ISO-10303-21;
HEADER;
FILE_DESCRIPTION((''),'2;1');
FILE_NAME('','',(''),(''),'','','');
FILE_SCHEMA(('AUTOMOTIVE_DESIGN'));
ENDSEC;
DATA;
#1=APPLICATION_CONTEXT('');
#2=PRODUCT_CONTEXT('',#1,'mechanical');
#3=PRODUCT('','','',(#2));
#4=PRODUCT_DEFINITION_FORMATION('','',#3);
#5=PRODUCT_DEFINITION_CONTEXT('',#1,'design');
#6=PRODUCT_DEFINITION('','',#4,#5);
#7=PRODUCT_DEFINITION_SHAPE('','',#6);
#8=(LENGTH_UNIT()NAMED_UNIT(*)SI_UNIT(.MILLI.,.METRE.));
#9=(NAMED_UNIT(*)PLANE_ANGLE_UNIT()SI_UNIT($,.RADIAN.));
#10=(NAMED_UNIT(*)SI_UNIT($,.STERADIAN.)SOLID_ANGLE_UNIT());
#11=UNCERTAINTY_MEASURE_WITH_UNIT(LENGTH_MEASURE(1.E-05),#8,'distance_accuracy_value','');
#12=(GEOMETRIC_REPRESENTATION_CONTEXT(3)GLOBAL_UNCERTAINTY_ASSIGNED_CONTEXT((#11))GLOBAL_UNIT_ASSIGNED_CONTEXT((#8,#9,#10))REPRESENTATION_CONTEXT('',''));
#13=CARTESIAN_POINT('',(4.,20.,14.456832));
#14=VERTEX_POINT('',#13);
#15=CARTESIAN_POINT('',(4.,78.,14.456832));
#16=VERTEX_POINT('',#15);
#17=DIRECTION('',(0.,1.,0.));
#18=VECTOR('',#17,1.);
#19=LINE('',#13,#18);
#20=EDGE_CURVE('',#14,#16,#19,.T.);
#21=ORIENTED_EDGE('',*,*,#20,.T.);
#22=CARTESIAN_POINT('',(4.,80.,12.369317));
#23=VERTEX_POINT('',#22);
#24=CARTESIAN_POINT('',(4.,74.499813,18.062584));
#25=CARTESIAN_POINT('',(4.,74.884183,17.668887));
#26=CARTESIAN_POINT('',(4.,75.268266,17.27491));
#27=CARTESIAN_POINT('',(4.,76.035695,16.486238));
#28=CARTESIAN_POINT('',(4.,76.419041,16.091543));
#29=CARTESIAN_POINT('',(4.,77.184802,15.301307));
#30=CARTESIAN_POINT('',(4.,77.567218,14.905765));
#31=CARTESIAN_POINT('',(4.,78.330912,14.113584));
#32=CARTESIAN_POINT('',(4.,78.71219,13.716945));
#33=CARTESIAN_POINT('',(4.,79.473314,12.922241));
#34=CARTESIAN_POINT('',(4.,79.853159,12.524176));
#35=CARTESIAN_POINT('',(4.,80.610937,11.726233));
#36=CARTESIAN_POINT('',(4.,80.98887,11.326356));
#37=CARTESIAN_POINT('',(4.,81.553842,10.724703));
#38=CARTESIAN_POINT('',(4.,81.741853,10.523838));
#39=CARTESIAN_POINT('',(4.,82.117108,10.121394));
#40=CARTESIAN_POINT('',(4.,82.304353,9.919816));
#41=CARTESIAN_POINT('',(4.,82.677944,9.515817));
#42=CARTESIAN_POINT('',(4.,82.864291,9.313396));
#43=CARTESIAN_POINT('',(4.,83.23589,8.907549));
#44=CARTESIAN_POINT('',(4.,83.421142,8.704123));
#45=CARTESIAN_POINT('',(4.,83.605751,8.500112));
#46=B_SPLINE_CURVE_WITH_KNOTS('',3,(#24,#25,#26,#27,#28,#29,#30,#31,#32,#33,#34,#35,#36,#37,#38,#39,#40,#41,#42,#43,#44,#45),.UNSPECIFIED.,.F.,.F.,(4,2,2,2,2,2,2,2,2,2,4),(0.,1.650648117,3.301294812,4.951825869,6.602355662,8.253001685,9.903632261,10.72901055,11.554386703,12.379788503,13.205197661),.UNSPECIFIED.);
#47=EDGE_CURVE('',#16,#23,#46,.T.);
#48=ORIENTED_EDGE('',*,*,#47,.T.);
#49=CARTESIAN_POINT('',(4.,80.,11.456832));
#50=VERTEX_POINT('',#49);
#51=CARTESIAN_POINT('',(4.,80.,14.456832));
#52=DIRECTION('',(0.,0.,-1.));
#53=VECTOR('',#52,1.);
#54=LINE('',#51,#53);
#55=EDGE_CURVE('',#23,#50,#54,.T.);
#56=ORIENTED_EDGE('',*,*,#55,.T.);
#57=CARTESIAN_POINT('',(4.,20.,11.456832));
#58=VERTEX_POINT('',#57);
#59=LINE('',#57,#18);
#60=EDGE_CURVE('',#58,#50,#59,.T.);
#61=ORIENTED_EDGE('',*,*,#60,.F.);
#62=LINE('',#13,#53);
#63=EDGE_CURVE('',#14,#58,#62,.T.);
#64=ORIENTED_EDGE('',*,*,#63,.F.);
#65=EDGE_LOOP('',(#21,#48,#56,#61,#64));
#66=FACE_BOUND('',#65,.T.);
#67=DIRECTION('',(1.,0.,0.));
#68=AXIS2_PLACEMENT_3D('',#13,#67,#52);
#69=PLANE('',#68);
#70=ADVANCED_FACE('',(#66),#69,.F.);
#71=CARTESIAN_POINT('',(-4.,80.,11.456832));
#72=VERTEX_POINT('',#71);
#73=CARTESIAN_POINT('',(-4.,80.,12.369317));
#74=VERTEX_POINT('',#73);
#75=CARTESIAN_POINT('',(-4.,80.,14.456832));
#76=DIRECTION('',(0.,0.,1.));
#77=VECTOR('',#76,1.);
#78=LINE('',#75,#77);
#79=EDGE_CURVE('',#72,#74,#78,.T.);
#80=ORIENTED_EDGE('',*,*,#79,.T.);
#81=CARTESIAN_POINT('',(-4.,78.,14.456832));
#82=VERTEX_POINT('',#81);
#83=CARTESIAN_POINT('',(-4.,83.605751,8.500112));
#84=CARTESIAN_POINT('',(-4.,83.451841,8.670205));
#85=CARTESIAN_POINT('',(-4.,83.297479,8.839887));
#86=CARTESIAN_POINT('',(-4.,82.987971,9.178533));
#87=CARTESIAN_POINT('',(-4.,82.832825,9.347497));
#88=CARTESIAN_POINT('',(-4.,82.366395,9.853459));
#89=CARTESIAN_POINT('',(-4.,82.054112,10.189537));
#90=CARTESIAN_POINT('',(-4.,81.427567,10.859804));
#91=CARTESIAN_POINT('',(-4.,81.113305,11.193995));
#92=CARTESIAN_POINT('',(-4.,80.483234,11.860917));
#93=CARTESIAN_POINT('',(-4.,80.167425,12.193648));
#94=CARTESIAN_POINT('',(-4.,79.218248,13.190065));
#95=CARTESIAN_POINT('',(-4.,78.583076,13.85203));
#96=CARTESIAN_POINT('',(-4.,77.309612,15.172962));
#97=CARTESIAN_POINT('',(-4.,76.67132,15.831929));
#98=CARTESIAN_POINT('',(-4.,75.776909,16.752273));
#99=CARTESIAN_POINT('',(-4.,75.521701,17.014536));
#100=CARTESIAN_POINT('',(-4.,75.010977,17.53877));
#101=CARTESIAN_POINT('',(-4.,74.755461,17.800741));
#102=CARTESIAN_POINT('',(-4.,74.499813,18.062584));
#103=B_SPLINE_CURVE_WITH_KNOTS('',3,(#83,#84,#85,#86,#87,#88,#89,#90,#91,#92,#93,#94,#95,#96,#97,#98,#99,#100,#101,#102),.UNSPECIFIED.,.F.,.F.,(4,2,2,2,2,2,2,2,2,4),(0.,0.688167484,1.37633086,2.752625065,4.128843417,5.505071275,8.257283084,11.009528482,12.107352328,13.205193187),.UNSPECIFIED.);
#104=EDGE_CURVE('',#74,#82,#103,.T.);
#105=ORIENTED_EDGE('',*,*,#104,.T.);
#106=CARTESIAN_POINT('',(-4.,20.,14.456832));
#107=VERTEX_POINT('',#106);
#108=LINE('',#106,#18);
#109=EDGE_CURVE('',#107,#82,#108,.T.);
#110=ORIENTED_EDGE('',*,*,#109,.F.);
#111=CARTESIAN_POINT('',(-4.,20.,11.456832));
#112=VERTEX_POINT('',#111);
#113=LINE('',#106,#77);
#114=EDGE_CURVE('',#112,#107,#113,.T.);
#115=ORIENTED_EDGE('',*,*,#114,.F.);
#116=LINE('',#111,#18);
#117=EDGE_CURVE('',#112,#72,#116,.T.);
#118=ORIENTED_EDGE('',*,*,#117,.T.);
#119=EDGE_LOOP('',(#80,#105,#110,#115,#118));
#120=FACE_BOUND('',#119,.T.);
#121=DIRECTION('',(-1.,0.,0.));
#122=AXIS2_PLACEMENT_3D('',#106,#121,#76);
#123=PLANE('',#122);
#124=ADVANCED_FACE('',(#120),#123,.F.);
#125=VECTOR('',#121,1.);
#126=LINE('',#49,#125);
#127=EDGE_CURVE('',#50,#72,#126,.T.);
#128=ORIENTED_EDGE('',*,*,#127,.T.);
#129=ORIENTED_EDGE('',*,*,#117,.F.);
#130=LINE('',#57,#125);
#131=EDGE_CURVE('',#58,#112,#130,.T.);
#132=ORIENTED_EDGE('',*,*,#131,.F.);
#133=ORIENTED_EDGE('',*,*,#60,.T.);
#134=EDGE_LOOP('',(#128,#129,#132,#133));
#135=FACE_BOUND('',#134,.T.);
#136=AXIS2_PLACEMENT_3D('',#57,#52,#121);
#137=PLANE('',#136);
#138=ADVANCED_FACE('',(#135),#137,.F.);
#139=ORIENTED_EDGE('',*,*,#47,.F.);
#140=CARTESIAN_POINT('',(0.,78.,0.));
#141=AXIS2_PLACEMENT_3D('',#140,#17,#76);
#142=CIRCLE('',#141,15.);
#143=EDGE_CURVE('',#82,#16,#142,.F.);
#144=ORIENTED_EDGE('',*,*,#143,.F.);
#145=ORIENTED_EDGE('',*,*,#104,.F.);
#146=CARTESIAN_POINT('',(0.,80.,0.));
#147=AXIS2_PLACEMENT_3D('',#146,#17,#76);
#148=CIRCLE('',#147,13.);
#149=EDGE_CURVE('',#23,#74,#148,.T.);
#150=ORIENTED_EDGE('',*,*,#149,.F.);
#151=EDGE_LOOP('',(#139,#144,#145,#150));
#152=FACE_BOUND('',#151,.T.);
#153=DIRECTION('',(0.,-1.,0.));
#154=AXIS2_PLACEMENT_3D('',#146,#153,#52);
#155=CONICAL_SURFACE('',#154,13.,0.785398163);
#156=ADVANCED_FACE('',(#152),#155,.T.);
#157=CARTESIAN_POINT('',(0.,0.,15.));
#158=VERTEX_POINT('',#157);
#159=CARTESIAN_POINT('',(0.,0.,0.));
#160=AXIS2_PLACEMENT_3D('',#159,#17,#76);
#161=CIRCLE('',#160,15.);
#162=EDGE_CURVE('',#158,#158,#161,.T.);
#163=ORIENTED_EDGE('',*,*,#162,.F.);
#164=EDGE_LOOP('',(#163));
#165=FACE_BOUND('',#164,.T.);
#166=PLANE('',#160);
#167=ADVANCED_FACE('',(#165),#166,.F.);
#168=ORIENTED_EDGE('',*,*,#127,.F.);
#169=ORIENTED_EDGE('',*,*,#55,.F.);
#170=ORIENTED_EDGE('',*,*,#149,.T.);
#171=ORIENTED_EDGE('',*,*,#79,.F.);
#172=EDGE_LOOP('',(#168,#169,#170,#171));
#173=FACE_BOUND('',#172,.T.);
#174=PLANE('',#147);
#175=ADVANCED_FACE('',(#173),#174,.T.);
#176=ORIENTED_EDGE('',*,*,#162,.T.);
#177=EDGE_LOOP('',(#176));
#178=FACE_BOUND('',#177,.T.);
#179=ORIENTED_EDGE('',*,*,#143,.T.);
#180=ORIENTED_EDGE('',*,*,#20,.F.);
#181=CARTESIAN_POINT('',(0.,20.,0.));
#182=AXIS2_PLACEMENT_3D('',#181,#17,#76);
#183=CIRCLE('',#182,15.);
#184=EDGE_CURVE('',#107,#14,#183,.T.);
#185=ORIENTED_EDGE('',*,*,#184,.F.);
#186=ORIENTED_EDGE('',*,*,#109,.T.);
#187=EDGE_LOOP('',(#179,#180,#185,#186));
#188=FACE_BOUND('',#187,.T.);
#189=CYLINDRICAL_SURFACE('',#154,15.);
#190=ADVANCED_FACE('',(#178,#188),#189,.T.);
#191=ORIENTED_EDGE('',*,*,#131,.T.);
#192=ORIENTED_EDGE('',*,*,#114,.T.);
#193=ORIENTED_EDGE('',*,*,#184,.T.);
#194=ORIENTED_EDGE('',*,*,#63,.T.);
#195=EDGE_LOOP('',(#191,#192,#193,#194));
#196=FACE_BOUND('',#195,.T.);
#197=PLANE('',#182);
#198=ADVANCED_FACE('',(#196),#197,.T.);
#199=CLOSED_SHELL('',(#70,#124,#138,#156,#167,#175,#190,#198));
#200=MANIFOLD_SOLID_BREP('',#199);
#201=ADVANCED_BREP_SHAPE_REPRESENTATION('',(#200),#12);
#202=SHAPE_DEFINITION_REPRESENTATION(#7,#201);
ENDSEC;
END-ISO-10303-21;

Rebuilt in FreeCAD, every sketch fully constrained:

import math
import FreeCAD as App
import Part
import Sketcher
from FreeCAD import Vector
Q = App.Units.Quantity


def edges_at(feature, points):
    """Names of the edges that pass closest to the given points."""
    edges = feature.Shape.Edges
    near = lambda p: min(range(len(edges)), key=lambda i: edges[i].distToShape(Part.Vertex(*p))[0])
    return sorted({f"Edge{near(p) + 1}" for p in points})

doc = App.newDocument("Part")
params = doc.addObject("Spreadsheet::Sheet", "Params")
for row, (alias, value) in enumerate([
    ("sketch1_diameter", "30 mm"),
    ("pad1_length", "80 mm"),
    ("chamfer_size", "2 mm"),
    ("sketch2_radius", "15 mm"),
    ("sketch2_width", "8 mm"),
    ("sketch2_height", "3 mm"),
    ("pocket1_length", "60 mm"),
], start=1):
    params.set(f"A{row}", alias)
    params.set(f"B{row}", "=" + value)
    params.setAlias(f"B{row}", alias)

body = doc.addObject("PartDesign::Body", "Body")

sketch1 = body.newObject("Sketcher::SketchObject", "Sketch")
sketch1.AttachmentSupport = (doc.getObject("XZ_Plane"), [""])
sketch1.MapMode = "FlatFace"
sketch1.addGeometry(Part.Circle(Vector(0, 0, 0), Vector(0, 0, 1), 15), False)
sketch1.addConstraint([
    Sketcher.Constraint("Coincident", 0, 3, -1, 1),
    Sketcher.Constraint("Diameter", 0, Q("30 mm")),
])
sketch1.setExpression("Constraints[1]", "Params.sketch1_diameter")
pad1 = body.newObject("PartDesign::Pad", "Pad")
pad1.Profile = sketch1
pad1.setExpression("Length", "Params.pad1_length")
pad1.Reversed = True
doc.recompute()

chamfer = body.newObject("PartDesign::Chamfer", "Chamfer")
chamfer.Base = (pad1, edges_at(pad1, [(0, 80, -15)]))
chamfer.setExpression("Size", "Params.chamfer_size")

sketch2 = body.newObject("Sketcher::SketchObject", "Sketch001")
sketch2.AttachmentSupport = (doc.getObject("XZ_Plane"), [""])
sketch2.MapMode = "FlatFace"
sketch2.AttachmentOffset = App.Placement(Vector(0, 0, -20), App.Rotation())
sketch2.addGeometry([
    Part.LineSegment(Vector(4, 14.456832, 0), Vector(4, 11.456832, 0)),
    Part.LineSegment(Vector(4, 11.456832, 0), Vector(-4, 11.456832, 0)),
    Part.LineSegment(Vector(-4, 11.456832, 0), Vector(-4, 14.456832, 0)),
    Part.ArcOfCircle(Part.Circle(Vector(0, 0, 0), Vector(0, 0, 1), 15), math.radians(74.53399), math.radians(105.46601)),
], False)
sketch2.addConstraint([
    Sketcher.Constraint("Coincident", 0, 2, 1, 1),
    Sketcher.Constraint("Coincident", 1, 2, 2, 1),
    Sketcher.Constraint("Coincident", 2, 2, 3, 2),
    Sketcher.Constraint("Coincident", 3, 1, 0, 1),
    Sketcher.Constraint("Vertical", 0),
    Sketcher.Constraint("Horizontal", 1),
    Sketcher.Constraint("Vertical", 2),
    Sketcher.Constraint("Coincident", 3, 3, -1, 1),
    Sketcher.Constraint("Horizontal", 2, 2, 3, 1),
    Sketcher.Constraint("Radius", 3, Q("15 mm")),
    Sketcher.Constraint("DistanceX", 1, 2, 1, 1, Q("8 mm")),
    Sketcher.Constraint("DistanceY", 0, 2, 0, 1, Q("3 mm")),
])
sketch2.setExpression("Constraints[9]", "Params.sketch2_radius")
sketch2.setExpression("Constraints[10]", "Params.sketch2_width")
sketch2.setExpression("Constraints[11]", "Params.sketch2_height")
pocket1 = body.newObject("PartDesign::Pocket", "Pocket")
pocket1.Profile = sketch2
pocket1.setExpression("Length", "Params.pocket1_length")

doc.recompute()
